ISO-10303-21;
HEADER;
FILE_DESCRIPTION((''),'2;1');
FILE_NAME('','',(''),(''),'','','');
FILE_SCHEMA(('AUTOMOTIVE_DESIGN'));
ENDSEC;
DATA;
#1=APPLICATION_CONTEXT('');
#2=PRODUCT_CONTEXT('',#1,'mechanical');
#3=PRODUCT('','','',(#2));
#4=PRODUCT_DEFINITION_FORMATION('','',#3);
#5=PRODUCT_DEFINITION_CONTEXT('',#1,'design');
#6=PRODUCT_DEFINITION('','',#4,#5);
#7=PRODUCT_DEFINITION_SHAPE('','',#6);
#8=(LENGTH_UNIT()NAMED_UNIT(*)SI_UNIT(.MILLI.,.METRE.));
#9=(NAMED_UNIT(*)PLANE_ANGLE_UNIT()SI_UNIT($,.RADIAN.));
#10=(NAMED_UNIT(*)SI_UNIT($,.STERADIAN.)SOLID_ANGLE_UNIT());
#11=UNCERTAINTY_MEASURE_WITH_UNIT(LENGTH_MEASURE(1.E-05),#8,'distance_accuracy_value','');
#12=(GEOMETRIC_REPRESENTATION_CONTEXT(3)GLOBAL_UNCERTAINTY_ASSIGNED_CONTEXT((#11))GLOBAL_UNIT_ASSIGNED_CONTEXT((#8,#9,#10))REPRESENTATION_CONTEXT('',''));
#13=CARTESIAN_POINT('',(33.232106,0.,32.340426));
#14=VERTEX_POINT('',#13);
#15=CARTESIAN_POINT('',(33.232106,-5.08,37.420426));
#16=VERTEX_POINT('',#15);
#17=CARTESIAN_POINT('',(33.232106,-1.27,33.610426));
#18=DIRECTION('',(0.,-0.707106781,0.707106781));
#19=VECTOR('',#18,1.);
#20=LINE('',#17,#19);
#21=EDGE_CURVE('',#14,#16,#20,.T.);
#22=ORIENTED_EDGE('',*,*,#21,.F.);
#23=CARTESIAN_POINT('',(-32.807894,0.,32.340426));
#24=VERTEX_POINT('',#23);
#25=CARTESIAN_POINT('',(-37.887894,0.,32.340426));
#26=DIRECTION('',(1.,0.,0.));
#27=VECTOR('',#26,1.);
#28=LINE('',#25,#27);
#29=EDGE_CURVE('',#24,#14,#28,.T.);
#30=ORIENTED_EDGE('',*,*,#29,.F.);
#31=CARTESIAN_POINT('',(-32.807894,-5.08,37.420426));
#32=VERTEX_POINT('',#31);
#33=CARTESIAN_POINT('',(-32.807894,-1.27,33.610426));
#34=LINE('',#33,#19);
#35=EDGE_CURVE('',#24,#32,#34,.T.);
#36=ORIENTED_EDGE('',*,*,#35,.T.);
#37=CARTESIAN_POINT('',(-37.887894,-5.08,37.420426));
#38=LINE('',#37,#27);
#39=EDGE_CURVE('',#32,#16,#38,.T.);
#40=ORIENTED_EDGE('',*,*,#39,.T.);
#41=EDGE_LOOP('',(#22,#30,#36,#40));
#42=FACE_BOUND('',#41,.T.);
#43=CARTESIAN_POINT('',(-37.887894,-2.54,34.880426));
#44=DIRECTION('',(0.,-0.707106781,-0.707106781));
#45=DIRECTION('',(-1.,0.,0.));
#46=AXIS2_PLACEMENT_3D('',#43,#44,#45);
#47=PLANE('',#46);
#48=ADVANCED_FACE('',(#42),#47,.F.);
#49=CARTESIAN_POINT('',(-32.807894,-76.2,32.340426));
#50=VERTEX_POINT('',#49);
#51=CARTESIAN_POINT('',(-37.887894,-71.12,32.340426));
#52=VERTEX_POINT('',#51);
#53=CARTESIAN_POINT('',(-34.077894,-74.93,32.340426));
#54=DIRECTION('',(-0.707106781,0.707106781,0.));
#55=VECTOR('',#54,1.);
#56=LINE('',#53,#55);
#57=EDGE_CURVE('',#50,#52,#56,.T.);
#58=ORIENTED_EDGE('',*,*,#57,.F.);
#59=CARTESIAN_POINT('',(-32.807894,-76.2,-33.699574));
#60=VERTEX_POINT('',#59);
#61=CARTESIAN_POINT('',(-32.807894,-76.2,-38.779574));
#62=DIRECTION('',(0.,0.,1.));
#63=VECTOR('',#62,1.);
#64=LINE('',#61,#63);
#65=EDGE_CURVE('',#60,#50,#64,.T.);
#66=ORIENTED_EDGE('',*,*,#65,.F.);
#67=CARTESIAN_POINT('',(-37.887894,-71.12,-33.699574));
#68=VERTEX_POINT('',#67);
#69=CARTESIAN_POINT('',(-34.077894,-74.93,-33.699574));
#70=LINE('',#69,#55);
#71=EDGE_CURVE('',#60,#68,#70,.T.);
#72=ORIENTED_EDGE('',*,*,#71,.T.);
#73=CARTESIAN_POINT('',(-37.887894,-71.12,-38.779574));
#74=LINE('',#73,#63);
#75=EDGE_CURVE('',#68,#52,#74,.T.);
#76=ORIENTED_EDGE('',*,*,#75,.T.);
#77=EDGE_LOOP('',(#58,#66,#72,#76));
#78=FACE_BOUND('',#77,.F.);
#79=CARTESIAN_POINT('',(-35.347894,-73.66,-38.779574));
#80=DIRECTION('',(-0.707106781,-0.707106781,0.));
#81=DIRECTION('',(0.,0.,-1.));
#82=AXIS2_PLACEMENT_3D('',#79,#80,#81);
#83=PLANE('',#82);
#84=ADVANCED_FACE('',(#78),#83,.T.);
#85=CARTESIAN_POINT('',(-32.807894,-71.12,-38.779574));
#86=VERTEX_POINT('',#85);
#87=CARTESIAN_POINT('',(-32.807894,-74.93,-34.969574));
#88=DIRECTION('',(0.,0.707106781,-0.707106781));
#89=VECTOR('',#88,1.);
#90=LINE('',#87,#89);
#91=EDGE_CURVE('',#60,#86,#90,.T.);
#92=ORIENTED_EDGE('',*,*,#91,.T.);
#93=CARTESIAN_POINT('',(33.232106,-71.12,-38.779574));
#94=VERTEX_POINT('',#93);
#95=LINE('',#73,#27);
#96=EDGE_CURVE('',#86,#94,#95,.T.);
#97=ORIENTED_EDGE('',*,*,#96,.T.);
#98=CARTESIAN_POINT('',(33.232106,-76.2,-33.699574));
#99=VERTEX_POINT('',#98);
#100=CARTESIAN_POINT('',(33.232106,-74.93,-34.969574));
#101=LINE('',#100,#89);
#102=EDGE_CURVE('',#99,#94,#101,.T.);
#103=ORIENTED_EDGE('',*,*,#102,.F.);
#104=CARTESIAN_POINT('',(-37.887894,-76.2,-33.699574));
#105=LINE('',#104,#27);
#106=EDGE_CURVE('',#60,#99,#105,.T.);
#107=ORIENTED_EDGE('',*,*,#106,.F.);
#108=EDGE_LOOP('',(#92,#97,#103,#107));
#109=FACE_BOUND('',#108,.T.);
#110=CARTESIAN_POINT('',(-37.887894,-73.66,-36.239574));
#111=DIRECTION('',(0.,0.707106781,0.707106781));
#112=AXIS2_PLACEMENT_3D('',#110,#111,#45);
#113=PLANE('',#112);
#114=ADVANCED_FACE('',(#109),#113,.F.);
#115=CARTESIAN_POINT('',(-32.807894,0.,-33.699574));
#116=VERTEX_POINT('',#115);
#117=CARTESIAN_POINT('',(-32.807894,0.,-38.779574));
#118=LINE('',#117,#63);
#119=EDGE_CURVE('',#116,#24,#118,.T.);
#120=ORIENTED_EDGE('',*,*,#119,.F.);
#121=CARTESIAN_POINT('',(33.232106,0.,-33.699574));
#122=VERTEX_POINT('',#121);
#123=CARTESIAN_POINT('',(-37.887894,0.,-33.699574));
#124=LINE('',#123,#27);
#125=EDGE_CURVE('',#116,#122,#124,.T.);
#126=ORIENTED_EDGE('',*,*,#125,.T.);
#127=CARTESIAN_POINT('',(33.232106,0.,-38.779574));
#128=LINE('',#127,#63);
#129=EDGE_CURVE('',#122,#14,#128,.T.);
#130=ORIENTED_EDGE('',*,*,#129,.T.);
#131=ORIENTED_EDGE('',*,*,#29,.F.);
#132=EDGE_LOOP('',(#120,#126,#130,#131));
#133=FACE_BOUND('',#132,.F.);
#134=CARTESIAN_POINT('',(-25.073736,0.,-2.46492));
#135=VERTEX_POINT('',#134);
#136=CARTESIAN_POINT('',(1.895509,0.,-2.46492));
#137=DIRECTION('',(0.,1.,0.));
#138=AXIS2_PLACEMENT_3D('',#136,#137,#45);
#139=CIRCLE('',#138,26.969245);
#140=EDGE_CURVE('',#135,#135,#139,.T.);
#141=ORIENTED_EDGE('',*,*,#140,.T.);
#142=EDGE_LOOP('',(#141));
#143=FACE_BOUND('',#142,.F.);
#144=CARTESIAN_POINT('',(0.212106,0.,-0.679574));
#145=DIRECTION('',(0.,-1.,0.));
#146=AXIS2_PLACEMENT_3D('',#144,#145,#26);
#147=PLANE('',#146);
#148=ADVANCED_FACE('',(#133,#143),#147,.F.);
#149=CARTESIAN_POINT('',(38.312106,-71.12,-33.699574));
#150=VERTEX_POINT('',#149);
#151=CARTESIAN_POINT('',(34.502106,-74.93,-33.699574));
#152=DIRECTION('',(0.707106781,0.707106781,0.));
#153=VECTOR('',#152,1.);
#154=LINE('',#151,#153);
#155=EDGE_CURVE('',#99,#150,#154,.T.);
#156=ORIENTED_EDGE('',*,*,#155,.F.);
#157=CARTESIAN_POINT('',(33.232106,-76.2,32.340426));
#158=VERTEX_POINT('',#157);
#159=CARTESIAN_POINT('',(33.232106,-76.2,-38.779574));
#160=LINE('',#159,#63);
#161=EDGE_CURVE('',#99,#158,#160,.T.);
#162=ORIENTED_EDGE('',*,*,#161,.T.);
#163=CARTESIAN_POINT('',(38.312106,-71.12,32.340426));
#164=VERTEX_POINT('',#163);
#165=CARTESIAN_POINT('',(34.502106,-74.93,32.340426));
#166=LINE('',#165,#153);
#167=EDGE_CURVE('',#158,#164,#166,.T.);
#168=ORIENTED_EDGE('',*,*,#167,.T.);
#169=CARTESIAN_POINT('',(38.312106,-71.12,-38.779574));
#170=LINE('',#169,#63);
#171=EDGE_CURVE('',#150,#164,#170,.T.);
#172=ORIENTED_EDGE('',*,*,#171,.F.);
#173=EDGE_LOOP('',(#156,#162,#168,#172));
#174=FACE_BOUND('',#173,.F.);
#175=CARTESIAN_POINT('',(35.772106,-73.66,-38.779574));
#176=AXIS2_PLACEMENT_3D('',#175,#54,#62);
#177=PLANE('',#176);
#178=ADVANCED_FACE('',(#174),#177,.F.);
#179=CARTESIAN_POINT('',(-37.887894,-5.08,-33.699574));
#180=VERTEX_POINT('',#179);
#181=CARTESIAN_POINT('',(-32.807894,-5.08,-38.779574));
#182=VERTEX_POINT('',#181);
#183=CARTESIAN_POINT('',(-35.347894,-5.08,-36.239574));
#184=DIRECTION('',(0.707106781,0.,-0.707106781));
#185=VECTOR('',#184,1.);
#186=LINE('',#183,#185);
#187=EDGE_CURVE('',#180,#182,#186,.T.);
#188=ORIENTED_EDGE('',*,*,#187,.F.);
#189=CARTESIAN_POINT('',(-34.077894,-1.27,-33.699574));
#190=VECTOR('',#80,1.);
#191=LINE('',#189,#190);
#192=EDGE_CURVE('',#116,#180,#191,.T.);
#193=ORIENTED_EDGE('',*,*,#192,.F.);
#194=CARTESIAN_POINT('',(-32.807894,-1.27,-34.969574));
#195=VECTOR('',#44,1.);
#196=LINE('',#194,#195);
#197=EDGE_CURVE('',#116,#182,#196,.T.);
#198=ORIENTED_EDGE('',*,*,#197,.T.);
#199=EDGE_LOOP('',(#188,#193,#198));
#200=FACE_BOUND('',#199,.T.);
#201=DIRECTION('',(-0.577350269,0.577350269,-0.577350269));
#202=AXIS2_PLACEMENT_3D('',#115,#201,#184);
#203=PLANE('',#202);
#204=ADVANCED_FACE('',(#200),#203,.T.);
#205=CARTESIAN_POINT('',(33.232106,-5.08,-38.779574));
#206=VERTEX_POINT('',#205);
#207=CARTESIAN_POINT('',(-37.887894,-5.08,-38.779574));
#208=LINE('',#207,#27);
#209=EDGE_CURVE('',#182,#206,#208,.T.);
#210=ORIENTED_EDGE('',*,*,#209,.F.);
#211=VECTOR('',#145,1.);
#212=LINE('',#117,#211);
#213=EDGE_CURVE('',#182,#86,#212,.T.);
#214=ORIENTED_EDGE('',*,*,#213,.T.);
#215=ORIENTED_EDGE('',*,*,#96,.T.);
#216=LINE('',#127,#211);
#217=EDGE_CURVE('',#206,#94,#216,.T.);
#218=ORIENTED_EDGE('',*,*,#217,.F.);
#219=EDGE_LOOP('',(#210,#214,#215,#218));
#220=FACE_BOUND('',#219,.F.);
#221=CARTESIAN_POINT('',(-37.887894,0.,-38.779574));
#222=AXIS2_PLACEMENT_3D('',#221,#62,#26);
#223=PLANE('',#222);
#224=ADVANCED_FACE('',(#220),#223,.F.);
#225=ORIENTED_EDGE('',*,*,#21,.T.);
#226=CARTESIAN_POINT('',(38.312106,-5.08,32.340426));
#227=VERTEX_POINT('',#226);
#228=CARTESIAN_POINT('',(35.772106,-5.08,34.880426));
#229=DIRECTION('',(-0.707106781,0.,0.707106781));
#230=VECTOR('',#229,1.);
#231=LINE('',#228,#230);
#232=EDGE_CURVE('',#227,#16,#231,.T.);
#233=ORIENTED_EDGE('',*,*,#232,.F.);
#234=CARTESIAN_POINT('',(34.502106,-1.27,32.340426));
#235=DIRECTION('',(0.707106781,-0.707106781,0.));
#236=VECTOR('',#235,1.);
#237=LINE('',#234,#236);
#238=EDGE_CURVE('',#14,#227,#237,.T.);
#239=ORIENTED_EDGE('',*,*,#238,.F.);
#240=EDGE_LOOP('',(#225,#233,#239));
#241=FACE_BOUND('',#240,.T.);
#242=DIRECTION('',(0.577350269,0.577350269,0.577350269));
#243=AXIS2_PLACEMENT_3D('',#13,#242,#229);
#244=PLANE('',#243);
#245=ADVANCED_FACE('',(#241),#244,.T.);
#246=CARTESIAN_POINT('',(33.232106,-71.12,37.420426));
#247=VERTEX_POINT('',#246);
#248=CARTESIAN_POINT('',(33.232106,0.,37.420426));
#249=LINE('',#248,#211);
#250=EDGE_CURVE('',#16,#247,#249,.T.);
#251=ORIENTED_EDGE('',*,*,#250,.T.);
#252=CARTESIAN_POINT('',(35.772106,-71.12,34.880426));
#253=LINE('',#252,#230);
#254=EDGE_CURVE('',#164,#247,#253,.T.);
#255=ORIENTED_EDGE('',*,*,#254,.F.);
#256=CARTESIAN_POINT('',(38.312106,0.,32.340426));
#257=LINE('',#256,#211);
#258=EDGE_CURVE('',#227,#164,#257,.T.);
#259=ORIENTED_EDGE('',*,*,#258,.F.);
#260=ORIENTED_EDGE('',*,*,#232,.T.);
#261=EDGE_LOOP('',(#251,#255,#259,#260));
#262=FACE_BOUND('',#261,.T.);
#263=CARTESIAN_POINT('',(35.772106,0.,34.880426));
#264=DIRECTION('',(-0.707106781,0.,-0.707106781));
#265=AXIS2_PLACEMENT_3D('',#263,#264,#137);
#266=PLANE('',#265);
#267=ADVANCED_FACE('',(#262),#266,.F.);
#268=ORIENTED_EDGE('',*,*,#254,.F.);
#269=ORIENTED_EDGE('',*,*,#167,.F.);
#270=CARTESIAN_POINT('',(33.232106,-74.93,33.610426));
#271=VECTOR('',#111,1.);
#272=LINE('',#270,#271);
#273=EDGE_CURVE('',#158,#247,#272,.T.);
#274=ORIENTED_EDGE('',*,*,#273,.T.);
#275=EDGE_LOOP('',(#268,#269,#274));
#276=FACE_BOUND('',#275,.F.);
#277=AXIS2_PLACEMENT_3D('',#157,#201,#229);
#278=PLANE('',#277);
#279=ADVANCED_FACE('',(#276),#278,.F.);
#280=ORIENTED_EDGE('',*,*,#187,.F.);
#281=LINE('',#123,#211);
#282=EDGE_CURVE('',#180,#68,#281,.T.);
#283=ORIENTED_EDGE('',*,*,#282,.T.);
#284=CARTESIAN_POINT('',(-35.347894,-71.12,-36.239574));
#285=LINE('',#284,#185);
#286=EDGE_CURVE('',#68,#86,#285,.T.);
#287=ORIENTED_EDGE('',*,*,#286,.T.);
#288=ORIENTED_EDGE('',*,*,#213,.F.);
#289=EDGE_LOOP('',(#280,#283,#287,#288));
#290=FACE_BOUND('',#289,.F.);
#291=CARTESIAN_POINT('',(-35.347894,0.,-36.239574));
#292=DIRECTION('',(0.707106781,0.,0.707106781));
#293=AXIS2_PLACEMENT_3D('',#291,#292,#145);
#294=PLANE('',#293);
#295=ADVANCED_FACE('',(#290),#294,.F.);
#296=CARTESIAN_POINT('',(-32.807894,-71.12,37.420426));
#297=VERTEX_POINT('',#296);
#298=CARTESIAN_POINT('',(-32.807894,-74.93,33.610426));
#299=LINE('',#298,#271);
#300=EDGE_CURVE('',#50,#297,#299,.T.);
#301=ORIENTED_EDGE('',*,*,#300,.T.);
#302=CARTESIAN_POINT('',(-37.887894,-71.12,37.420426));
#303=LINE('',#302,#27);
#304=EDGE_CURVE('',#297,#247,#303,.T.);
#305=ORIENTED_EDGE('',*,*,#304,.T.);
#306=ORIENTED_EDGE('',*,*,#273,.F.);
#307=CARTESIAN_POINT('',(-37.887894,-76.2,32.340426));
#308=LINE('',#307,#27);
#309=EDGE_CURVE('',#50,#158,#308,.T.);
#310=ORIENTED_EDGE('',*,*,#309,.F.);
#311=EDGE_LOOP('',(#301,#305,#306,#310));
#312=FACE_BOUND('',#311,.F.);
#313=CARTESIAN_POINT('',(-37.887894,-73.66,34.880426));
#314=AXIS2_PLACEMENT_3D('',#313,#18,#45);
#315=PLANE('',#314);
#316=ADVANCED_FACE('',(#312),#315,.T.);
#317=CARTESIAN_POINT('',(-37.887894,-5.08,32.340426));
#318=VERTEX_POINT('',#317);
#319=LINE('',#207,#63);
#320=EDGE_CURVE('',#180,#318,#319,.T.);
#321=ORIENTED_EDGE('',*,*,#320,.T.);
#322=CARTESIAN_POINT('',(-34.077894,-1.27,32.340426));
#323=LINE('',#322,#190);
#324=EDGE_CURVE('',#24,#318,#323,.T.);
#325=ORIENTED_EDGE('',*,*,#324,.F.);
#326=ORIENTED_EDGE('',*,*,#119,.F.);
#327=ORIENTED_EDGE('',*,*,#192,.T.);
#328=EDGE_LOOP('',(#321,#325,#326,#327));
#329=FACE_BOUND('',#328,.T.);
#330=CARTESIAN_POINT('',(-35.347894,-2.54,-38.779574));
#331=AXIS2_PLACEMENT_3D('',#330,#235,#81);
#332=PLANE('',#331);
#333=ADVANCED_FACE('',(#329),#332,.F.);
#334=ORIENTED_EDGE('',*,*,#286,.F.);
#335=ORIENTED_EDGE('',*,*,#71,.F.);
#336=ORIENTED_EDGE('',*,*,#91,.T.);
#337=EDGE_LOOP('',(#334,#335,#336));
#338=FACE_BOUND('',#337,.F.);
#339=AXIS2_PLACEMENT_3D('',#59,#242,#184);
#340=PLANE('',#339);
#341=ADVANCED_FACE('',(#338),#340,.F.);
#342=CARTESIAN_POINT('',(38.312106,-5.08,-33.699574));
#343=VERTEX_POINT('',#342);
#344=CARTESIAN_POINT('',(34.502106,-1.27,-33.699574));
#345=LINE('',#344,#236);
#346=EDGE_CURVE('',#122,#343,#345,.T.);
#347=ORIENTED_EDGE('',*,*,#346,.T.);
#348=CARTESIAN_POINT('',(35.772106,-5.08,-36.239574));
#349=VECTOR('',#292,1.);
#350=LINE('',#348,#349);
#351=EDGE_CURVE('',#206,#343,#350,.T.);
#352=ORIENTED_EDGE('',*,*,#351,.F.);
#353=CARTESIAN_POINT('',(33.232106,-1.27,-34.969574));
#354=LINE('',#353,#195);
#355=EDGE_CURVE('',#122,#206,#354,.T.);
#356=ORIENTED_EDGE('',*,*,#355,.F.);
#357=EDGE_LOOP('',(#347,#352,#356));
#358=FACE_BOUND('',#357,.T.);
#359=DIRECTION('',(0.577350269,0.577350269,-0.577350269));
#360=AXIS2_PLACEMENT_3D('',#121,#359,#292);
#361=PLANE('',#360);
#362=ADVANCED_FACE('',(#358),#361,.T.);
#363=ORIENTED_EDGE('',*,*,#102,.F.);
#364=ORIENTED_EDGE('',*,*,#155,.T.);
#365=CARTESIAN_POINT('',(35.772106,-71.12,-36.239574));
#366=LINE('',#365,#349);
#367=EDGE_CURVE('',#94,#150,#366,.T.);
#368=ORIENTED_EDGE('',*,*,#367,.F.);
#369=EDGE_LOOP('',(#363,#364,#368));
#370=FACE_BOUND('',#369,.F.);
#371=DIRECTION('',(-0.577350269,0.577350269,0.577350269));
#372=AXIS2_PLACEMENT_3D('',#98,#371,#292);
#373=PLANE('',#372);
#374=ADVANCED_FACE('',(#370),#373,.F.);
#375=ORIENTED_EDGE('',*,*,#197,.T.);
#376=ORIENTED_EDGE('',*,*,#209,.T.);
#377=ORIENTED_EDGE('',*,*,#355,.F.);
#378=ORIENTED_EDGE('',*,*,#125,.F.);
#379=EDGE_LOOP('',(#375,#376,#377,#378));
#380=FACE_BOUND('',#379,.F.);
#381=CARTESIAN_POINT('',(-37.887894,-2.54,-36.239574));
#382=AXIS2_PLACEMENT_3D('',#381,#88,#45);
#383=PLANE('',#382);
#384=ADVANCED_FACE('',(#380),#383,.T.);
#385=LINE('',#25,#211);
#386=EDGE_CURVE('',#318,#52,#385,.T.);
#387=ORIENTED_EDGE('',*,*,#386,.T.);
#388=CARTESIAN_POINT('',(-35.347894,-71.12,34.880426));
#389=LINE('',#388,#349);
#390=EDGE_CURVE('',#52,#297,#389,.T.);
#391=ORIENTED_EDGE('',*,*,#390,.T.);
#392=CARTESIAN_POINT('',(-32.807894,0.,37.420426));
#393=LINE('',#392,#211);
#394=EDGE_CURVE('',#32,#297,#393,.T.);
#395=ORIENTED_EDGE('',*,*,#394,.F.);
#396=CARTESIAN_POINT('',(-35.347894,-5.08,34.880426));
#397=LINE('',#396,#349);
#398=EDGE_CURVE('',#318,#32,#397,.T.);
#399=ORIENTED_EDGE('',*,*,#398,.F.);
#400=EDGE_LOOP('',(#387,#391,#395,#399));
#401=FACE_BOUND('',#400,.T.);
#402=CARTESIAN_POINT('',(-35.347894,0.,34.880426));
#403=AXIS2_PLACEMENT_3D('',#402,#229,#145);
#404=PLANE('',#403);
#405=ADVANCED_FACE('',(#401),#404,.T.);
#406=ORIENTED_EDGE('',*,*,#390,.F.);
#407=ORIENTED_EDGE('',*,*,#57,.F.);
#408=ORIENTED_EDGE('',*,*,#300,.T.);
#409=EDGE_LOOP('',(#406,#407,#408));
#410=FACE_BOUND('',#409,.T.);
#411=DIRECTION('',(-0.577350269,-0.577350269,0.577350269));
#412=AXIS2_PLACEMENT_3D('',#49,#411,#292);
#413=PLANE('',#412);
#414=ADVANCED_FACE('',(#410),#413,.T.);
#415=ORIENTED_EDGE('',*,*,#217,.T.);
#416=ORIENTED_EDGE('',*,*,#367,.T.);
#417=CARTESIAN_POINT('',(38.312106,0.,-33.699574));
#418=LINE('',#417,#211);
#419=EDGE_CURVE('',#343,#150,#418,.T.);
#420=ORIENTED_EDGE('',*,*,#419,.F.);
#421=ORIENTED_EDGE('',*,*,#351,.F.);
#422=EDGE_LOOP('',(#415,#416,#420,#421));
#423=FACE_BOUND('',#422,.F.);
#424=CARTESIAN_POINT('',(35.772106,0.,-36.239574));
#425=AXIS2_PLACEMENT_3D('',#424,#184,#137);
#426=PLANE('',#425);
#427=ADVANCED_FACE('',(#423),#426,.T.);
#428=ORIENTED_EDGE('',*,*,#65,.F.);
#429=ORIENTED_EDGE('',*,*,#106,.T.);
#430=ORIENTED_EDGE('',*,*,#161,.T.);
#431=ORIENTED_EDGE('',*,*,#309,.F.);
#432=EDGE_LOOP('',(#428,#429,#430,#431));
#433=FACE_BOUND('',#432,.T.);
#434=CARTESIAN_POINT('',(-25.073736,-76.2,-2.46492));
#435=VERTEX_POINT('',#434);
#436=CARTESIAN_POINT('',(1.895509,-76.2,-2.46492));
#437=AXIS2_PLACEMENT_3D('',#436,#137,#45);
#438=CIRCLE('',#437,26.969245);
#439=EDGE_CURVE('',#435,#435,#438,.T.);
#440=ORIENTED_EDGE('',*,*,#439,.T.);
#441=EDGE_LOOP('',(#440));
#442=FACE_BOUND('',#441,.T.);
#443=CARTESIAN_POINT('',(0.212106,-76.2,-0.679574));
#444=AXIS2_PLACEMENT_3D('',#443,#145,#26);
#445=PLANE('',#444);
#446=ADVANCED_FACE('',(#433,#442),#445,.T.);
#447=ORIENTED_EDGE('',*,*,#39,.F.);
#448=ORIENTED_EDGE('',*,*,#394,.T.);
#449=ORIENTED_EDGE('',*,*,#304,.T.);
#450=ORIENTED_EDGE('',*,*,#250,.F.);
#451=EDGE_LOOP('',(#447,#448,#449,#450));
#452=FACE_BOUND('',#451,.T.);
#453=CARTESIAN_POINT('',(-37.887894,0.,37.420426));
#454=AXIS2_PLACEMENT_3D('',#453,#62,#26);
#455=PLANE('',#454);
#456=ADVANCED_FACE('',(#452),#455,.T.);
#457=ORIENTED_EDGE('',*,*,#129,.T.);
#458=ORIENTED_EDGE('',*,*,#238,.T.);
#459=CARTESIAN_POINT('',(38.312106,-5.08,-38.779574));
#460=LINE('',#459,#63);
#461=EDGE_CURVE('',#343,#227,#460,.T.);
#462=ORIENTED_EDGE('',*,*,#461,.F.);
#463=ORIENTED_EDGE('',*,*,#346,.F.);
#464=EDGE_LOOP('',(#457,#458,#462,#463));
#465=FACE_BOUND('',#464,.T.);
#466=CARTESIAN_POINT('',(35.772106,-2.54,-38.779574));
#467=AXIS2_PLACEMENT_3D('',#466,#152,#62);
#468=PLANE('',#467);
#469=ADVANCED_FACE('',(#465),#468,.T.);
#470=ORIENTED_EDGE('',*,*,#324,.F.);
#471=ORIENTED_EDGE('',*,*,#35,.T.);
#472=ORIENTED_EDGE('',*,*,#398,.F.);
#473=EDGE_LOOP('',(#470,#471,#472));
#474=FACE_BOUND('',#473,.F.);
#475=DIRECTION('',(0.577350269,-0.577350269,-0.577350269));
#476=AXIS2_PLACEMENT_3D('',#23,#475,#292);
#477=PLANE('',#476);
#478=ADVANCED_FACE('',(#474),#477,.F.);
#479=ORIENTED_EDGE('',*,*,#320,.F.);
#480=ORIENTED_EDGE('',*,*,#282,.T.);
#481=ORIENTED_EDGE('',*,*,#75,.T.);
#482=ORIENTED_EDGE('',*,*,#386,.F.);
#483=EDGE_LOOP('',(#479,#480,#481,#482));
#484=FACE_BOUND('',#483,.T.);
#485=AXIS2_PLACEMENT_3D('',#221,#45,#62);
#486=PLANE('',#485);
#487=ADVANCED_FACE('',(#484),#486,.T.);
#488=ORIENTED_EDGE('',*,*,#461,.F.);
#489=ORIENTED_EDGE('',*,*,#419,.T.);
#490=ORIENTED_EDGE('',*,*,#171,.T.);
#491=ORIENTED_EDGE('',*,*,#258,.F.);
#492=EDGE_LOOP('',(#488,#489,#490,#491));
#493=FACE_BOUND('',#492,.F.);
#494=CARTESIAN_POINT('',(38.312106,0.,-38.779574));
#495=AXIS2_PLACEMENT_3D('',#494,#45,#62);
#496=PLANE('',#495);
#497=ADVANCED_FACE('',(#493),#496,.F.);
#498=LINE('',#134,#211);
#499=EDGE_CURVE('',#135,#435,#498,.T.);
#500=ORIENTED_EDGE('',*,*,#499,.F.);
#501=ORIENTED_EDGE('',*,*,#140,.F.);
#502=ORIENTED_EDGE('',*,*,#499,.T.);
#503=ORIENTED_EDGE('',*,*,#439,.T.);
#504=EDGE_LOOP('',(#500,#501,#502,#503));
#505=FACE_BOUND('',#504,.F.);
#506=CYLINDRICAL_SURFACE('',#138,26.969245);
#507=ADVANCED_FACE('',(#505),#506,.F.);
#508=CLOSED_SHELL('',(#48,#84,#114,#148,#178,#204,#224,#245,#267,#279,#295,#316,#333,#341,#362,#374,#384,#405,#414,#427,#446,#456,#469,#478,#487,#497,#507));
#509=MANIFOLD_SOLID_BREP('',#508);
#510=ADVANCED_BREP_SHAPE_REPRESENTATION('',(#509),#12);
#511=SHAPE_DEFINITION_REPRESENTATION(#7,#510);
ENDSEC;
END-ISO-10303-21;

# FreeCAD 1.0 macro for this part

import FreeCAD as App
import Part
import Sketcher
Q = App.Units.Quantity


def edges_at(feature, points):
    """Names of the edges that pass closest to the given points."""
    edges = feature.Shape.Edges
    near = lambda p: min(range(len(edges)), key=lambda i: edges[i].distToShape(Part.Vertex(*p))[0])
    return sorted({f"Edge{near(p) + 1}" for p in points})


def add_polygon(sketch, points):
    """Adds a closed chain of lines whose ends are joined by coincident constraints."""
    first, n = sketch.GeometryCount, len(points)
    for a, b in zip(points, points[1:] + points[:1]):
        sketch.addGeometry(Part.LineSegment(App.Vector(*a, 0), App.Vector(*b, 0)), False)
    for i in range(n):
        sketch.addConstraint(Sketcher.Constraint("Coincident", first + i, 2, first + (i + 1) % n, 1))

doc = App.newDocument("Part")
body = doc.addObject("PartDesign::Body", "Body")

# Sketch on XZ plane
sketch1 = body.newObject("Sketcher::SketchObject", "Sketch")
sketch1.AttachmentSupport = (doc.getObject("XZ_Plane"), [""])
sketch1.MapMode = "FlatFace"
add_polygon(sketch1, [(-38, 37), (-38, -39), (38, -39), (38, 37)])  # lines 0-3
sketch1.addConstraint([
    Sketcher.Constraint("Vertical", 0),
    Sketcher.Constraint("Horizontal", 1),
    Sketcher.Constraint("Vertical", 2),
    Sketcher.Constraint("Horizontal", 3),
    Sketcher.Constraint("Equal", 3, 0),
    Sketcher.Constraint("DistanceX", 1, 1, 1, 2, Q("3 in")),
    Sketcher.Constraint("DistanceX", 0, 2, -1, 1, 37.887894),
    Sketcher.Constraint("DistanceY", 0, 2, -1, 1, 38.779574),
])
pad1 = body.newObject("PartDesign::Pad", "Pad")
pad1.Profile = sketch1
pad1.Length = Q("3 in")

# Sketch on XZ plane
sketch2 = body.newObject("Sketcher::SketchObject", "Sketch001")
sketch2.AttachmentSupport = (doc.getObject("XZ_Plane"), [""])
sketch2.MapMode = "FlatFace"
sketch2.addGeometry(Part.Circle(App.Vector(2, -2, 0), App.Vector(0, 0, 1), 27), False)
sketch2.addConstraint([
    Sketcher.Constraint("Diameter", 0, 53.93849),
    Sketcher.Constraint("DistanceX", -1, 1, 0, 3, 1.895509),
    Sketcher.Constraint("DistanceY", 0, 3, -1, 1, 2.46492),
])
pocket1 = body.newObject("PartDesign::Pocket", "Pocket")
pocket1.Profile = sketch2
pocket1.Type = "ThroughAll"
pocket1.Reversed = True
doc.recompute()

chamfer = body.newObject("PartDesign::Chamfer", "Chamfer")
chamfer.Base = (pocket1, edges_at(pocket1, [
    (-37.888, -38.1, 37.42),
    (-37.888, -38.1, -38.78),
    (-37.888, 0, -0.68),
    (-37.888, -76.2, -0.68),
    (38.312, -38.1, -38.78),
    (0.212, 0, -38.78),
    (0.212, -76.2, -38.78),
    (38.312, -38.1, 37.42),
    (38.312, 0, -0.68),
    (38.312, -76.2, -0.68),
    (0.212, 0, 37.42),
    (0.212, -76.2, 37.42),
]))
chamfer.Size = Q("0.2 in")

doc.recompute()
